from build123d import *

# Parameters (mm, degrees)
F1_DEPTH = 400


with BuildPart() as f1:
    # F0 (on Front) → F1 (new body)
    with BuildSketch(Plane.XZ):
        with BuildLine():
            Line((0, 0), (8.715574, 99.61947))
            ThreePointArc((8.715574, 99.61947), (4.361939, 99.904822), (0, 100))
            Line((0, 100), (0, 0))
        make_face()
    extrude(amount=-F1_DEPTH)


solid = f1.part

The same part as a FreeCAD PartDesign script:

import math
import FreeCAD as App
import Part
import Sketcher
Q = App.Units.Quantity

doc = App.newDocument("Part")
body = doc.addObject("PartDesign::Body", "Body")

sketch1 = body.newObject("Sketcher::SketchObject", "Sketch")
sketch1.AttachmentSupport = (doc.getObject("XZ_Plane"), [""])
sketch1.MapMode = "FlatFace"
sketch1.addGeometry([
    Part.LineSegment(App.Vector(0, 0, 0), App.Vector(9, 100, 0)),
    Part.ArcOfCircle(Part.Circle(App.Vector(0, 0, 0), App.Vector(0, 0, 1), 100), math.radians(85), math.radians(90)),
    Part.LineSegment(App.Vector(0, 100, 0), App.Vector(0, 0, 0)),
], False)
sketch1.addConstraint([
    Sketcher.Constraint("Coincident", 0, 2, 1, 1),
    Sketcher.Constraint("Coincident", 1, 2, 2, 1),
    Sketcher.Constraint("Coincident", 2, 2, 0, 1),
    Sketcher.Constraint("Vertical", 2),
    Sketcher.Constraint("Coincident", 2, 2, -1, 1),
    Sketcher.Constraint("DistanceY", 2, 2, 2, 1, 100.0),
    Sketcher.Constraint("Angle", 0, Q("85 deg")),
    Sketcher.Constraint("Distance", 0, 100.0),
    Sketcher.Constraint("Radius", 1, 100.000241),
])
pad1 = body.newObject("PartDesign::Pad", "Pad")
pad1.Profile = sketch1
pad1.Length = 400
pad1.Reversed = True

doc.recompute()
